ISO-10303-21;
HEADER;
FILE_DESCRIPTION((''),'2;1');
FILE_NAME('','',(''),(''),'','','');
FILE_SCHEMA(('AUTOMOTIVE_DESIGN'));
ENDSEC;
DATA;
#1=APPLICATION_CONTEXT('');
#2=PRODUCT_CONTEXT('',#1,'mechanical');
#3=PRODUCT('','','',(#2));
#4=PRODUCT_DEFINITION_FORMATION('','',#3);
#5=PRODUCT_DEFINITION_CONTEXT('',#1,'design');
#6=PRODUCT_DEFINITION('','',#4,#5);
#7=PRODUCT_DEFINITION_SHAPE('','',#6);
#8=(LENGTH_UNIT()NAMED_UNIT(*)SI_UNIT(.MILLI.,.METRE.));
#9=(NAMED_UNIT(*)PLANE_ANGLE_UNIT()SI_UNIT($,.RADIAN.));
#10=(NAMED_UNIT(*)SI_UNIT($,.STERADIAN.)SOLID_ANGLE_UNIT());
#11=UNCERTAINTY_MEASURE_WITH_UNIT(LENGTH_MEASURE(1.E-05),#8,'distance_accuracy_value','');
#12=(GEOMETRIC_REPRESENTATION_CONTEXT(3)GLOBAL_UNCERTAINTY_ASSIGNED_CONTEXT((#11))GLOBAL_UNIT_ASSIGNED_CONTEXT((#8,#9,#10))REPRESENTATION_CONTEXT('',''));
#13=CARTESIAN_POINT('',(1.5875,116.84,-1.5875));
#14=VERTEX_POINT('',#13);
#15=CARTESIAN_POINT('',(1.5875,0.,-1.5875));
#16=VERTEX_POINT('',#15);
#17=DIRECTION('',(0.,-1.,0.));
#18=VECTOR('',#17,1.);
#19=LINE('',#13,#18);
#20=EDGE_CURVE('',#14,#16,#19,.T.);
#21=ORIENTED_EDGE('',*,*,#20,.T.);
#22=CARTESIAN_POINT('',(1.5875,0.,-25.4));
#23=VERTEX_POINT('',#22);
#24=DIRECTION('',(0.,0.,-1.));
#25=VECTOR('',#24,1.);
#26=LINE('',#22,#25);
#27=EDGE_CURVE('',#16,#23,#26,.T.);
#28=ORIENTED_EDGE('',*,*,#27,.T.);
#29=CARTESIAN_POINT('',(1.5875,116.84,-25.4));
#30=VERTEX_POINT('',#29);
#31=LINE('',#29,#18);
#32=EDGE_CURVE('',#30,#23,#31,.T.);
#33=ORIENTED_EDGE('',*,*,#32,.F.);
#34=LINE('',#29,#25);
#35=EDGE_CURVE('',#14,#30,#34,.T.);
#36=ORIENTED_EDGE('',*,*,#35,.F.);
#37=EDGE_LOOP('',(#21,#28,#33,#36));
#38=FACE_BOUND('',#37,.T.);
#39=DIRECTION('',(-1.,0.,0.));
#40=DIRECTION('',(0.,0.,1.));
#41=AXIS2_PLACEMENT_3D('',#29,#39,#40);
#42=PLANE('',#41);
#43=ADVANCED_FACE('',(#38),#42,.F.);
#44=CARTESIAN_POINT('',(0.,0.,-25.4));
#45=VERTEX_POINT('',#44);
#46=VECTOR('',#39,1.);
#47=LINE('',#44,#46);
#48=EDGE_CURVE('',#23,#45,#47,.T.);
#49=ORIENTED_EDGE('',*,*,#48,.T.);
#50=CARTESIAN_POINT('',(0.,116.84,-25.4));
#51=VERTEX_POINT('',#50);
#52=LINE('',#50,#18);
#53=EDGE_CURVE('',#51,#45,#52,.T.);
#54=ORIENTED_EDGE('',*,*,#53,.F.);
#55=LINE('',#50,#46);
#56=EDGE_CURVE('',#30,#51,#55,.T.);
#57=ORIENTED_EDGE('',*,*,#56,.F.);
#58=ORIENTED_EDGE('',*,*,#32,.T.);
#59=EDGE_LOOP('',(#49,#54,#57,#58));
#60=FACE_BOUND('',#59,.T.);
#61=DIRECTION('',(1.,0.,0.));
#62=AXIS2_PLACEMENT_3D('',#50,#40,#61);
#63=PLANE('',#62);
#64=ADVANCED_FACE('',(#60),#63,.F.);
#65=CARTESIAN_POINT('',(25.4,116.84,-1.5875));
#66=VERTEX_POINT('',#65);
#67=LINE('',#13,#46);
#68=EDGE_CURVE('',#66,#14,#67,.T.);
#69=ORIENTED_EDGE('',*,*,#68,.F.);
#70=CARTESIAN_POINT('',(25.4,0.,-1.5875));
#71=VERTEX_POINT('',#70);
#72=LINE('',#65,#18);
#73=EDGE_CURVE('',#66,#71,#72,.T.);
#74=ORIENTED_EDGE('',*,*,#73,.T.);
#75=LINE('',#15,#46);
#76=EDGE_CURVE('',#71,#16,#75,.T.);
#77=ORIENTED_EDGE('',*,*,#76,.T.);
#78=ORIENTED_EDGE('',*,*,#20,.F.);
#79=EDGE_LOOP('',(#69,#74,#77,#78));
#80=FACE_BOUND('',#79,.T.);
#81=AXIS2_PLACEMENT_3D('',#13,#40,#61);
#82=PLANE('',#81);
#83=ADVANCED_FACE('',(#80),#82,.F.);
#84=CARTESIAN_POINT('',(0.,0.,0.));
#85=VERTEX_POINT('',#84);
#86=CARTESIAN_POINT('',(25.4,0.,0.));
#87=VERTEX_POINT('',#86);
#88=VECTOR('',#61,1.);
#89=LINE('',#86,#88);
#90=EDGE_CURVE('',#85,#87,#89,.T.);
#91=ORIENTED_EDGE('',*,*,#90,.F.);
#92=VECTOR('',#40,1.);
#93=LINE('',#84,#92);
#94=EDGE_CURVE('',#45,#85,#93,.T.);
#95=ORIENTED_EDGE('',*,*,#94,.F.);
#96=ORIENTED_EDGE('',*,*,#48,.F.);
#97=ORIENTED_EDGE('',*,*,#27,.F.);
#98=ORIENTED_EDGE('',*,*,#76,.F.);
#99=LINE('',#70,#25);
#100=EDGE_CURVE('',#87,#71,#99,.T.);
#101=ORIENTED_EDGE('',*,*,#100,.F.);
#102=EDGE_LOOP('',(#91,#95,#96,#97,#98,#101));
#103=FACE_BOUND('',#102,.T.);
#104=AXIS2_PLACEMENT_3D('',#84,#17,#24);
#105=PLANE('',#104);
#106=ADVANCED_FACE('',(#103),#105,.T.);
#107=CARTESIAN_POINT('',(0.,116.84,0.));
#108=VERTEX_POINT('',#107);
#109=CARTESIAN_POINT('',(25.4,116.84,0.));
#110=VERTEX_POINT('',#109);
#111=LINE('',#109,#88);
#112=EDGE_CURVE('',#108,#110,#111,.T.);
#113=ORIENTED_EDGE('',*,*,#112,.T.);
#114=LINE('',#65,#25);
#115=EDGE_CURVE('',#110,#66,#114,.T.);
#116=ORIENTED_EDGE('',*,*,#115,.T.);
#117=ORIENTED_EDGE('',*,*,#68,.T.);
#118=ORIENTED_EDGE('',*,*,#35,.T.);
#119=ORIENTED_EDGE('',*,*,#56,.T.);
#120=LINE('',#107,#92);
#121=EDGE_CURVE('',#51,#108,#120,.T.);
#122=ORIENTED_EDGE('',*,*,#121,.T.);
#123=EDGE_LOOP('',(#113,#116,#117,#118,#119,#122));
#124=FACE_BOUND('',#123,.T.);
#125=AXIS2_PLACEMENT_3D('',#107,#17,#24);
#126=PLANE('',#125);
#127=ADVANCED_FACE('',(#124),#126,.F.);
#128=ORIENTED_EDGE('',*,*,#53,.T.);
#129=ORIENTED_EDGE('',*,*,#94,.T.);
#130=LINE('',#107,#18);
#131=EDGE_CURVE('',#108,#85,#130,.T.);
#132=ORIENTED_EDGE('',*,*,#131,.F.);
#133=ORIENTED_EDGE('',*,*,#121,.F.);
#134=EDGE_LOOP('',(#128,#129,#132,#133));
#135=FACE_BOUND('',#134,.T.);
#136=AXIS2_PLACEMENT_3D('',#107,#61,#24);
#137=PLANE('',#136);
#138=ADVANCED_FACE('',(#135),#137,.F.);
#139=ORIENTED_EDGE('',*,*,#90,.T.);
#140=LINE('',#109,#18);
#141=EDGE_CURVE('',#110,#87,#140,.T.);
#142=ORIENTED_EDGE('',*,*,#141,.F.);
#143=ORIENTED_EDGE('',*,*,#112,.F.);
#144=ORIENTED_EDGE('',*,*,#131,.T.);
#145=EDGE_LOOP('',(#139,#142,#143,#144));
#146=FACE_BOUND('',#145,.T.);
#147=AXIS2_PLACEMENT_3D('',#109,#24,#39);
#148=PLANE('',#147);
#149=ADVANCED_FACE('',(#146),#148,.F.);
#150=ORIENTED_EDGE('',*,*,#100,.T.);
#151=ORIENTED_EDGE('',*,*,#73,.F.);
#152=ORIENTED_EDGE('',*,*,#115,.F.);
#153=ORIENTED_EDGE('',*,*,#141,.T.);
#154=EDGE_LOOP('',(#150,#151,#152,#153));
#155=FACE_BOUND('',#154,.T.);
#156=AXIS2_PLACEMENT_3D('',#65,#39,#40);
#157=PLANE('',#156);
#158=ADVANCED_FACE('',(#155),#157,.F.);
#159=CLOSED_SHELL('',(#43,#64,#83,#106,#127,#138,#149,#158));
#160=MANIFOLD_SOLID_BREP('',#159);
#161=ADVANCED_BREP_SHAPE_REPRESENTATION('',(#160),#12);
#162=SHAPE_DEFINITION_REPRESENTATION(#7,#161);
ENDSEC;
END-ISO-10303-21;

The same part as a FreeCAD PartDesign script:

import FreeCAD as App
import Part
import Sketcher

V = App.Vector
Q = App.Units.Quantity


def add_polygon(sketch, points):
    """Adds a closed chain of lines whose ends are joined by coincident constraints."""
    first, n = sketch.GeometryCount, len(points)
    for a, b in zip(points, points[1:] + points[:1]):
        sketch.addGeometry(Part.LineSegment(App.Vector(*a, 0), App.Vector(*b, 0)), False)
    for i in range(n):
        sketch.addConstraint(Sketcher.Constraint("Coincident", first + i, 2, first + (i + 1) % n, 1))

doc = App.newDocument("Part")
body = doc.addObject("PartDesign::Body", "Body")

# Sketch on XZ plane
sketch1 = body.newObject("Sketcher::SketchObject", "Sketch")
sketch1.AttachmentSupport = (doc.getObject("XZ_Plane"), [""])
sketch1.MapMode = "FlatFace"
add_polygon(sketch1, [(0, -25.4), (0, 0), (25.4, 0), (25.4, -1.5875), (1.5875, -1.5875), (1.5875, -25.4)])  # lines 0-5
sketch1.addConstraint(Sketcher.Constraint("Vertical", 0))
sketch1.addConstraint(Sketcher.Constraint("Horizontal", 1))
sketch1.addConstraint(Sketcher.Constraint("Vertical", 2))
sketch1.addConstraint(Sketcher.Constraint("Horizontal", 3))
sketch1.addConstraint(Sketcher.Constraint("Vertical", 4))
sketch1.addConstraint(Sketcher.Constraint("Horizontal", 5))
sketch1.addConstraint(Sketcher.Constraint("Coincident", 0, 2, -1, 1))
sketch1.addConstraint(Sketcher.Constraint("Equal", 1, 0))
sketch1.addConstraint(Sketcher.Constraint("Equal", 5, 2))
sketch1.addConstraint(Sketcher.Constraint("DistanceX", 1, 1, 1, 2, Q("1 in")))
sketch1.addConstraint(Sketcher.Constraint("DistanceX", 3, 2, 3, 1, Q("0.9375 in")))
pad1 = body.newObject("PartDesign::Pad", "Pad")
pad1.Profile = sketch1
pad1.Length = Q("4.6 in")
pad1.Reversed = True

doc.recompute()
